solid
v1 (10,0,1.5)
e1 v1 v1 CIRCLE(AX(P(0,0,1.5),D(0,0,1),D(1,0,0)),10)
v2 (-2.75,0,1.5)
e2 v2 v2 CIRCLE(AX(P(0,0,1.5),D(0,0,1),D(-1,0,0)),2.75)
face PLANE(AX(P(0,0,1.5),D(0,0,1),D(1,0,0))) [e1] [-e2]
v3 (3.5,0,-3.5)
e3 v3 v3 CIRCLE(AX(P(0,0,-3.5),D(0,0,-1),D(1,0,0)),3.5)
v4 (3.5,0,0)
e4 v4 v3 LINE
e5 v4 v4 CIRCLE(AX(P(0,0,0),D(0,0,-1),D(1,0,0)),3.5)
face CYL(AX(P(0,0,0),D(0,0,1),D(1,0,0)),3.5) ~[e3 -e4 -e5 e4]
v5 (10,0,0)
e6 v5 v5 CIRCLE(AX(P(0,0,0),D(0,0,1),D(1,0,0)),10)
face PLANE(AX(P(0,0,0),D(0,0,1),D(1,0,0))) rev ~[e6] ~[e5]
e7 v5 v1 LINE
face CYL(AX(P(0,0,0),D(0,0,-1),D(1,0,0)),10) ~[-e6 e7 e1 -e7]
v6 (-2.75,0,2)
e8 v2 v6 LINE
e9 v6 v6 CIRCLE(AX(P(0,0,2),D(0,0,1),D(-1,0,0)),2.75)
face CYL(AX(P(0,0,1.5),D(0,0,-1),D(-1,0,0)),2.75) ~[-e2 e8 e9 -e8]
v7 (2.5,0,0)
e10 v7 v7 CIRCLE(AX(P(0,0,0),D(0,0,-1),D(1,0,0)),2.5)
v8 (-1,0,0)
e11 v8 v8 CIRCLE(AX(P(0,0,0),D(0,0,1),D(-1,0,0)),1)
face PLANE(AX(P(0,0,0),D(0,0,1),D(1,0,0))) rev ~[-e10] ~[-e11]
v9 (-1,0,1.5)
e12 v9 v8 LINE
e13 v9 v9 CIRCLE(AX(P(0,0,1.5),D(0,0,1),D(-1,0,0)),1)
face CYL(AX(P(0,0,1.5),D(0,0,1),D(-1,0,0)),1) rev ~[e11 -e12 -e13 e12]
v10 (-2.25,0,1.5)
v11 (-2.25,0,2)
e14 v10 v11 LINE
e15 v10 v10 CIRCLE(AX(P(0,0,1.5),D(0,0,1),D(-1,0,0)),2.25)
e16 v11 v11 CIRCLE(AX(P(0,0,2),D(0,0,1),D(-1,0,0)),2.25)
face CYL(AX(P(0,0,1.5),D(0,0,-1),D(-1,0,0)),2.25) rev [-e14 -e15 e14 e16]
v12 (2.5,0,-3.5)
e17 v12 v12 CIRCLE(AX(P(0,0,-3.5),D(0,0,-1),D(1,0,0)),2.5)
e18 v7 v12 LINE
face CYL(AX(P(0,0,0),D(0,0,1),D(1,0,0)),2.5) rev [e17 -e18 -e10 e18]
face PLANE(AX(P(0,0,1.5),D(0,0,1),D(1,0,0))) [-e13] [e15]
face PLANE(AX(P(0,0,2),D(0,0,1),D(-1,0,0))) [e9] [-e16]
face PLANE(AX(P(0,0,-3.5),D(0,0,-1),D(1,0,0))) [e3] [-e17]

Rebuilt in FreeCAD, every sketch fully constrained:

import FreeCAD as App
import Part
import Sketcher

V = App.Vector
Q = App.Units.Quantity

doc = App.newDocument("Part")
body = doc.addObject("PartDesign::Body", "Body")

# Sketch on XY plane
sketch1 = body.newObject("Sketcher::SketchObject", "Sketch")
sketch1.AttachmentSupport = (doc.getObject("XY_Plane"), [""])
sketch1.MapMode = "FlatFace"
sketch1.addGeometry(Part.Circle(V(0, 0, 0), V(0, 0, 1), 10), False)
sketch1.addConstraint([
    Sketcher.Constraint("Coincident", 0, 3, -1, 1),
    Sketcher.Constraint("Diameter", 0, Q("20 mm")),
])
pad1 = body.newObject("PartDesign::Pad", "Pad")
pad1.Profile = sketch1
pad1.Length = 1.5

# Sketch on XY plane
sketch2 = body.newObject("Sketcher::SketchObject", "Sketch001")
sketch2.AttachmentSupport = (doc.getObject("XY_Plane"), [""])
sketch2.MapMode = "FlatFace"
sketch2.addGeometry([
    Part.Circle(V(0, 0, 0), V(0, 0, 1), 3.5),
    Part.Circle(V(0, 0, 0), V(0, 0, 1), 2.5),
], False)
sketch2.addConstraint([
    Sketcher.Constraint("Coincident", 0, 3, -1, 1),
    Sketcher.Constraint("Coincident", 1, 3, -1, 1),
    Sketcher.Constraint("Diameter", 0, Q("7 mm")),
    Sketcher.Constraint("Diameter", 1, Q("5 mm")),
])
pad2 = body.newObject("PartDesign::Pad", "Pad001")
pad2.Profile = sketch2
pad2.Length = 3.5
pad2.Reversed = True

# Sketch on XY plane
sketch3 = body.newObject("Sketcher::SketchObject", "Sketch002")
sketch3.AttachmentSupport = (doc.getObject("XY_Plane"), [""])
sketch3.MapMode = "FlatFace"
sketch3.AttachmentOffset = App.Placement(V(0, 0, 1.5), App.Rotation())
sketch3.addGeometry([
    Part.Circle(V(0, 0, 0), V(0, 0, 1), 2.75),
    Part.Circle(V(0, 0, 0), V(0, 0, 1), 2.25),
], False)
sketch3.addConstraint([
    Sketcher.Constraint("Coincident", 0, 3, -1, 1),
    Sketcher.Constraint("Coincident", 1, 3, -1, 1),
    Sketcher.Constraint("Diameter", 0, Q("5.5 mm")),
    Sketcher.Constraint("Diameter", 1, Q("4.5 mm")),
])
pad3 = body.newObject("PartDesign::Pad", "Pad002")
pad3.Profile = sketch3
pad3.Length = 0.5

# Sketch on XY plane
sketch4 = body.newObject("Sketcher::SketchObject", "Sketch003")
sketch4.AttachmentSupport = (doc.getObject("XY_Plane"), [""])
sketch4.MapMode = "FlatFace"
sketch4.AttachmentOffset = App.Placement(V(0, 0, 1.5), App.Rotation())
sketch4.addGeometry(Part.Circle(V(0, 0, 0), V(0, 0, 1), 1), False)
sketch4.addConstraint([
    Sketcher.Constraint("Coincident", 0, 3, -1, 1),
    Sketcher.Constraint("Diameter", 0, Q("2 mm")),
])
pocket1 = body.newObject("PartDesign::Pocket", "Pocket")
pocket1.Profile = sketch4
pocket1.Length = 1.5

doc.recompute()
